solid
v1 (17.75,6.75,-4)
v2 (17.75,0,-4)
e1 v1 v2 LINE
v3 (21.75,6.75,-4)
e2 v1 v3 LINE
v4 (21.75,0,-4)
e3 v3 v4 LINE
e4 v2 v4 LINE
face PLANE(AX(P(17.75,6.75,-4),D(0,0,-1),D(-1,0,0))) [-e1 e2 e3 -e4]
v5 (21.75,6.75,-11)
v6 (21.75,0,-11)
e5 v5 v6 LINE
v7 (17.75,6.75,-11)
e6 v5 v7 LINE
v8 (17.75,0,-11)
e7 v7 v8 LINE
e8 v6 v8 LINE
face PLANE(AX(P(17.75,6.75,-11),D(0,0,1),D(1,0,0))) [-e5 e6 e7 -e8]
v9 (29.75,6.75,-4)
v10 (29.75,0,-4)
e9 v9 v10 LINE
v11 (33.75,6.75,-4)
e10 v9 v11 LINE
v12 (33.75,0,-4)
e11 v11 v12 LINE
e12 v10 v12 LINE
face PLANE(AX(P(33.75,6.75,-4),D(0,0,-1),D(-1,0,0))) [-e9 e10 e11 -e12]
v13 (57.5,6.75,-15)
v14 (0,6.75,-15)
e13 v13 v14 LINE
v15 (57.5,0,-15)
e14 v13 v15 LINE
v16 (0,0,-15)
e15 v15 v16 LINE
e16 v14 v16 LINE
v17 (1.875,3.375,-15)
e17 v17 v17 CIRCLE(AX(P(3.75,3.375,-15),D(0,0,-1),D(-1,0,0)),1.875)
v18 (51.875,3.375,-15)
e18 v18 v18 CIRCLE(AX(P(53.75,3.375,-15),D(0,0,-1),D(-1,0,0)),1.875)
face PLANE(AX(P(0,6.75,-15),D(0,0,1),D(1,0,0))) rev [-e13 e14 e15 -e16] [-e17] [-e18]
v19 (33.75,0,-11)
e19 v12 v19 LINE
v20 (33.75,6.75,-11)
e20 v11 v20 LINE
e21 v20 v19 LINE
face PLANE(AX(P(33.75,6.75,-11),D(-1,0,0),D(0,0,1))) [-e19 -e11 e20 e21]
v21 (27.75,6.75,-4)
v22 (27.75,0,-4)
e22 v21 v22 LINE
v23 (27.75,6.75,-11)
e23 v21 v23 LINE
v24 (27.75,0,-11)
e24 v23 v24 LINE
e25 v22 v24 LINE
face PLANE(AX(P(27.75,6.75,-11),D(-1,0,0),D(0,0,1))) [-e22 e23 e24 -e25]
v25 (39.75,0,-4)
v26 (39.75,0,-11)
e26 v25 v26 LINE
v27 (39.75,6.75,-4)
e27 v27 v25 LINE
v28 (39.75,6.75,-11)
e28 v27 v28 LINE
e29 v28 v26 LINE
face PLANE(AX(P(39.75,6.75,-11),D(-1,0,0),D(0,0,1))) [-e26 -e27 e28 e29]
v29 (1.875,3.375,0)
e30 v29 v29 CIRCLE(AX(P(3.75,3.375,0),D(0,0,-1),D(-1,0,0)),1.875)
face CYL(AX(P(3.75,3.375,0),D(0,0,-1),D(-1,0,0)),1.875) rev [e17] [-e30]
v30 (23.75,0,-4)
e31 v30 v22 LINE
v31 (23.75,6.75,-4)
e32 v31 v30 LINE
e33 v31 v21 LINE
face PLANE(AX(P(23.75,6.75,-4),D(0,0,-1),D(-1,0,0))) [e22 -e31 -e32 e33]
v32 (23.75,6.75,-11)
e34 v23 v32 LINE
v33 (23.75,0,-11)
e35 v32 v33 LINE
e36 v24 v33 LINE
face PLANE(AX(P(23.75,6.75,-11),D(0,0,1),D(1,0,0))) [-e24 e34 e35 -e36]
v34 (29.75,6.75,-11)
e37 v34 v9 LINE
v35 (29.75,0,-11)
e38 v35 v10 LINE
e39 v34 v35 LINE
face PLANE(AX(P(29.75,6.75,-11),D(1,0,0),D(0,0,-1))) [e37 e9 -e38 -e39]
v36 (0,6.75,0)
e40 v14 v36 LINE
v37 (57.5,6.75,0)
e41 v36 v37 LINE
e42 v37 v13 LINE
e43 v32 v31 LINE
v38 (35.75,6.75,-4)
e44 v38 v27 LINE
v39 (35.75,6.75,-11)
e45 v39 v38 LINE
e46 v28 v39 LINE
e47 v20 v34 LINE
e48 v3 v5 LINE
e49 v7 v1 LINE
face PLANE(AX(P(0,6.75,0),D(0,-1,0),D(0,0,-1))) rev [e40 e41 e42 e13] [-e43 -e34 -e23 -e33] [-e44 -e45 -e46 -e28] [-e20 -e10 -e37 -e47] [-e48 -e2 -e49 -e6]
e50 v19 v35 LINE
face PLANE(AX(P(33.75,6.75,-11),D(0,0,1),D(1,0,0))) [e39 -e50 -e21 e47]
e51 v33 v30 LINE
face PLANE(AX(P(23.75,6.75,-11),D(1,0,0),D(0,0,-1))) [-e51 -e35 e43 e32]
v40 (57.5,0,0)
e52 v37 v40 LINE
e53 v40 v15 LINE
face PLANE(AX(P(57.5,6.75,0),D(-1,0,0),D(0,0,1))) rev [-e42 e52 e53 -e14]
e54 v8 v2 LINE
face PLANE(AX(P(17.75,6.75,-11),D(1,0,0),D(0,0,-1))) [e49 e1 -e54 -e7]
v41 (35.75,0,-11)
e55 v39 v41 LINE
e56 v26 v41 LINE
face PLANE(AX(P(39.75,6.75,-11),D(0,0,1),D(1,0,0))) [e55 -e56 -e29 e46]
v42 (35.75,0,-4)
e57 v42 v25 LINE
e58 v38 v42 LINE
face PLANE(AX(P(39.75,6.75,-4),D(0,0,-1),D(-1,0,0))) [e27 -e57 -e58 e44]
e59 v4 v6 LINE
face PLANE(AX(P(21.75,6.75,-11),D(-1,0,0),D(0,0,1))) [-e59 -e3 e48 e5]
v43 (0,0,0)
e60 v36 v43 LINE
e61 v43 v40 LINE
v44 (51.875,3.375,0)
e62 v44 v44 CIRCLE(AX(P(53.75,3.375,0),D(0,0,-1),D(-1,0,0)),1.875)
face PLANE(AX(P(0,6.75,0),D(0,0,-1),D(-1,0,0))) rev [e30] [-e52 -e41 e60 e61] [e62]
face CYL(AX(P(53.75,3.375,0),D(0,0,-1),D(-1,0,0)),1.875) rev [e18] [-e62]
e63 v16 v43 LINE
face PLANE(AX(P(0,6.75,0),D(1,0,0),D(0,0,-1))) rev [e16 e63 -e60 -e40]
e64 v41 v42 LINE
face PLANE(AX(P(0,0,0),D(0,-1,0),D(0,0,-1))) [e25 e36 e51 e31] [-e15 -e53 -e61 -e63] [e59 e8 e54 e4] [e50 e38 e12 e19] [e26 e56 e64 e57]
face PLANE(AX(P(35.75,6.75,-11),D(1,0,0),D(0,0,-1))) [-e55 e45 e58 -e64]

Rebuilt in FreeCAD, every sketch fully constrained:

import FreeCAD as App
import Part
import Sketcher
from FreeCAD import Vector

doc = App.newDocument("Part")
body = doc.addObject("PartDesign::Body", "Body")

# Sketch on XZ plane
sketch1 = doc.addObject("Sketcher::SketchObject", "Sketch")
body.addObject(sketch1)
sketch1.AttachmentSupport = (doc.XZ_Plane, [""])
sketch1.MapMode = "FlatFace"
sketch1.addGeometry(Part.LineSegment(Vector(0, -15, 0), Vector(0, 0, 0)), False)
sketch1.addGeometry(Part.LineSegment(Vector(0, 0, 0), Vector(57.5, 0, 0)), False)
sketch1.addGeometry(Part.LineSegment(Vector(57.5, 0, 0), Vector(57.5, -15, 0)), False)
sketch1.addGeometry(Part.LineSegment(Vector(57.5, -15, 0), Vector(0, -15, 0)), False)
sketch1.addGeometry(Part.LineSegment(Vector(21.75, -4, 0), Vector(17.75, -4, 0)), False)
sketch1.addGeometry(Part.LineSegment(Vector(17.75, -4, 0), Vector(17.75, -11, 0)), False)
sketch1.addGeometry(Part.LineSegment(Vector(17.75, -11, 0), Vector(21.75, -11, 0)), False)
sketch1.addGeometry(Part.LineSegment(Vector(21.75, -11, 0), Vector(21.75, -4, 0)), False)
sketch1.addGeometry(Part.LineSegment(Vector(27.75, -4, 0), Vector(23.75, -4, 0)), False)
sketch1.addGeometry(Part.LineSegment(Vector(23.75, -4, 0), Vector(23.75, -11, 0)), False)
sketch1.addGeometry(Part.LineSegment(Vector(23.75, -11, 0), Vector(27.75, -11, 0)), False)
sketch1.addGeometry(Part.LineSegment(Vector(27.75, -11, 0), Vector(27.75, -4, 0)), False)
sketch1.addGeometry(Part.LineSegment(Vector(33.75, -4, 0), Vector(29.75, -4, 0)), False)
sketch1.addGeometry(Part.LineSegment(Vector(29.75, -4, 0), Vector(29.75, -11, 0)), False)
sketch1.addGeometry(Part.LineSegment(Vector(29.75, -11, 0), Vector(33.75, -11, 0)), False)
sketch1.addGeometry(Part.LineSegment(Vector(33.75, -11, 0), Vector(33.75, -4, 0)), False)
sketch1.addGeometry(Part.LineSegment(Vector(39.75, -4, 0), Vector(35.75, -4, 0)), False)
sketch1.addGeometry(Part.LineSegment(Vector(35.75, -4, 0), Vector(35.75, -11, 0)), False)
sketch1.addGeometry(Part.LineSegment(Vector(35.75, -11, 0), Vector(39.75, -11, 0)), False)
sketch1.addGeometry(Part.LineSegment(Vector(39.75, -11, 0), Vector(39.75, -4, 0)), False)
sketch1.addConstraint(Sketcher.Constraint("Coincident", 0, 2, 1, 1))
sketch1.addConstraint(Sketcher.Constraint("Coincident", 1, 2, 2, 1))
sketch1.addConstraint(Sketcher.Constraint("Coincident", 2, 2, 3, 1))
sketch1.addConstraint(Sketcher.Constraint("Coincident", 3, 2, 0, 1))
sketch1.addConstraint(Sketcher.Constraint("Coincident", 4, 2, 5, 1))
sketch1.addConstraint(Sketcher.Constraint("Coincident", 5, 2, 6, 1))
sketch1.addConstraint(Sketcher.Constraint("Coincident", 6, 2, 7, 1))
sketch1.addConstraint(Sketcher.Constraint("Coincident", 7, 2, 4, 1))
sketch1.addConstraint(Sketcher.Constraint("Coincident", 8, 2, 9, 1))
sketch1.addConstraint(Sketcher.Constraint("Coincident", 9, 2, 10, 1))
sketch1.addConstraint(Sketcher.Constraint("Coincident", 10, 2, 11, 1))
sketch1.addConstraint(Sketcher.Constraint("Coincident", 11, 2, 8, 1))
sketch1.addConstraint(Sketcher.Constraint("Coincident", 12, 2, 13, 1))
sketch1.addConstraint(Sketcher.Constraint("Coincident", 13, 2, 14, 1))
sketch1.addConstraint(Sketcher.Constraint("Coincident", 14, 2, 15, 1))
sketch1.addConstraint(Sketcher.Constraint("Coincident", 15, 2, 12, 1))
sketch1.addConstraint(Sketcher.Constraint("Coincident", 16, 2, 17, 1))
sketch1.addConstraint(Sketcher.Constraint("Coincident", 17, 2, 18, 1))
sketch1.addConstraint(Sketcher.Constraint("Coincident", 18, 2, 19, 1))
sketch1.addConstraint(Sketcher.Constraint("Coincident", 19, 2, 16, 1))
sketch1.addConstraint(Sketcher.Constraint("Vertical", 0))
sketch1.addConstraint(Sketcher.Constraint("Horizontal", 1))
sketch1.addConstraint(Sketcher.Constraint("Vertical", 2))
sketch1.addConstraint(Sketcher.Constraint("Horizontal", 3))
sketch1.addConstraint(Sketcher.Constraint("Horizontal", 4))
sketch1.addConstraint(Sketcher.Constraint("Vertical", 5))
sketch1.addConstraint(Sketcher.Constraint("Horizontal", 6))
sketch1.addConstraint(Sketcher.Constraint("Vertical", 7))
sketch1.addConstraint(Sketcher.Constraint("Horizontal", 8))
sketch1.addConstraint(Sketcher.Constraint("Vertical", 9))
sketch1.addConstraint(Sketcher.Constraint("Horizontal", 10))
sketch1.addConstraint(Sketcher.Constraint("Vertical", 11))
sketch1.addConstraint(Sketcher.Constraint("Horizontal", 12))
sketch1.addConstraint(Sketcher.Constraint("Vertical", 13))
sketch1.addConstraint(Sketcher.Constraint("Horizontal", 14))
sketch1.addConstraint(Sketcher.Constraint("Vertical", 15))
sketch1.addConstraint(Sketcher.Constraint("Horizontal", 16))
sketch1.addConstraint(Sketcher.Constraint("Vertical", 17))
sketch1.addConstraint(Sketcher.Constraint("Horizontal", 18))
sketch1.addConstraint(Sketcher.Constraint("Vertical", 19))
sketch1.addConstraint(Sketcher.Constraint("Coincident", 0, 2, -1, 1))
sketch1.addConstraint(Sketcher.Constraint("Horizontal", 7, 2, 8, 2))
sketch1.addConstraint(Sketcher.Constraint("Horizontal", 6, 2, 9, 2))
sketch1.addConstraint(Sketcher.Constraint("Horizontal", 11, 2, 12, 2))
sketch1.addConstraint(Sketcher.Constraint("Horizontal", 10, 2, 13, 2))
sketch1.addConstraint(Sketcher.Constraint("Horizontal", 15, 2, 16, 2))
sketch1.addConstraint(Sketcher.Constraint("Horizontal", 14, 2, 17, 2))
sketch1.addConstraint(Sketcher.Constraint("Equal", 6, 8))
sketch1.addConstraint(Sketcher.Constraint("Equal", 10, 12))
sketch1.addConstraint(Sketcher.Constraint("Equal", 14, 16))
sketch1.addConstraint(Sketcher.Constraint("DistanceX", 4, 2, 4, 1, 4.0))
sketch1.addConstraint(Sketcher.Constraint("DistanceY", 0, 1, 0, 2, 15.0))
sketch1.addConstraint(Sketcher.Constraint("DistanceY", 5, 2, 5, 1, 7.0))
sketch1.addConstraint(Sketcher.Constraint("DistanceX", 1, 1, 1, 2, 57.5))
sketch1.addConstraint(Sketcher.Constraint("DistanceY", 4, 2, -1, 1, 4.0))
sketch1.addConstraint(Sketcher.Constraint("DistanceX", 7, 2, 8, 2, 2.0))
sketch1.addConstraint(Sketcher.Constraint("DistanceX", 11, 2, 12, 2, 2.0))
sketch1.addConstraint(Sketcher.Constraint("DistanceX", 15, 2, 16, 2, 2.0))
sketch1.addConstraint(Sketcher.Constraint("DistanceX", -1, 1, 4, 2, 17.75))
pad1 = doc.addObject("PartDesign::Pad", "Pad")
body.addObject(pad1)
pad1.Profile = sketch1
pad1.Length = 6.75
pad1.Reversed = True

# Sketch on XY plane
sketch2 = doc.addObject("Sketcher::SketchObject", "Sketch001")
body.addObject(sketch2)
sketch2.AttachmentSupport = (doc.XY_Plane, [""])
sketch2.MapMode = "FlatFace"
sketch2.AttachmentOffset = App.Placement(Vector(0, 0, -15), App.Rotation())
sketch2.addGeometry(Part.Circle(Vector(53.75, 3.375, 0), Vector(0, 0, 1), 1.875), False)
sketch2.addGeometry(Part.Circle(Vector(3.75, 3.375, 0), Vector(0, 0, 1), 1.875), False)
sketch2.addConstraint(Sketcher.Constraint("Equal", 0, 1))
sketch2.addConstraint(Sketcher.Constraint("Horizontal", 0, 3, 1, 3))
sketch2.addConstraint(Sketcher.Constraint("Diameter", 0, 3.75))
sketch2.addConstraint(Sketcher.Constraint("DistanceX", 1, 3, 0, 3, 50.0))
sketch2.addConstraint(Sketcher.Constraint("DistanceX", -1, 1, 0, 3, 53.75))
sketch2.addConstraint(Sketcher.Constraint("DistanceY", -1, 1, 0, 3, 3.375))
pocket1 = doc.addObject("PartDesign::Pocket", "Pocket")
body.addObject(pocket1)
pocket1.Profile = sketch2
pocket1.Type = "ThroughAll"
pocket1.Reversed = True

doc.recompute()
